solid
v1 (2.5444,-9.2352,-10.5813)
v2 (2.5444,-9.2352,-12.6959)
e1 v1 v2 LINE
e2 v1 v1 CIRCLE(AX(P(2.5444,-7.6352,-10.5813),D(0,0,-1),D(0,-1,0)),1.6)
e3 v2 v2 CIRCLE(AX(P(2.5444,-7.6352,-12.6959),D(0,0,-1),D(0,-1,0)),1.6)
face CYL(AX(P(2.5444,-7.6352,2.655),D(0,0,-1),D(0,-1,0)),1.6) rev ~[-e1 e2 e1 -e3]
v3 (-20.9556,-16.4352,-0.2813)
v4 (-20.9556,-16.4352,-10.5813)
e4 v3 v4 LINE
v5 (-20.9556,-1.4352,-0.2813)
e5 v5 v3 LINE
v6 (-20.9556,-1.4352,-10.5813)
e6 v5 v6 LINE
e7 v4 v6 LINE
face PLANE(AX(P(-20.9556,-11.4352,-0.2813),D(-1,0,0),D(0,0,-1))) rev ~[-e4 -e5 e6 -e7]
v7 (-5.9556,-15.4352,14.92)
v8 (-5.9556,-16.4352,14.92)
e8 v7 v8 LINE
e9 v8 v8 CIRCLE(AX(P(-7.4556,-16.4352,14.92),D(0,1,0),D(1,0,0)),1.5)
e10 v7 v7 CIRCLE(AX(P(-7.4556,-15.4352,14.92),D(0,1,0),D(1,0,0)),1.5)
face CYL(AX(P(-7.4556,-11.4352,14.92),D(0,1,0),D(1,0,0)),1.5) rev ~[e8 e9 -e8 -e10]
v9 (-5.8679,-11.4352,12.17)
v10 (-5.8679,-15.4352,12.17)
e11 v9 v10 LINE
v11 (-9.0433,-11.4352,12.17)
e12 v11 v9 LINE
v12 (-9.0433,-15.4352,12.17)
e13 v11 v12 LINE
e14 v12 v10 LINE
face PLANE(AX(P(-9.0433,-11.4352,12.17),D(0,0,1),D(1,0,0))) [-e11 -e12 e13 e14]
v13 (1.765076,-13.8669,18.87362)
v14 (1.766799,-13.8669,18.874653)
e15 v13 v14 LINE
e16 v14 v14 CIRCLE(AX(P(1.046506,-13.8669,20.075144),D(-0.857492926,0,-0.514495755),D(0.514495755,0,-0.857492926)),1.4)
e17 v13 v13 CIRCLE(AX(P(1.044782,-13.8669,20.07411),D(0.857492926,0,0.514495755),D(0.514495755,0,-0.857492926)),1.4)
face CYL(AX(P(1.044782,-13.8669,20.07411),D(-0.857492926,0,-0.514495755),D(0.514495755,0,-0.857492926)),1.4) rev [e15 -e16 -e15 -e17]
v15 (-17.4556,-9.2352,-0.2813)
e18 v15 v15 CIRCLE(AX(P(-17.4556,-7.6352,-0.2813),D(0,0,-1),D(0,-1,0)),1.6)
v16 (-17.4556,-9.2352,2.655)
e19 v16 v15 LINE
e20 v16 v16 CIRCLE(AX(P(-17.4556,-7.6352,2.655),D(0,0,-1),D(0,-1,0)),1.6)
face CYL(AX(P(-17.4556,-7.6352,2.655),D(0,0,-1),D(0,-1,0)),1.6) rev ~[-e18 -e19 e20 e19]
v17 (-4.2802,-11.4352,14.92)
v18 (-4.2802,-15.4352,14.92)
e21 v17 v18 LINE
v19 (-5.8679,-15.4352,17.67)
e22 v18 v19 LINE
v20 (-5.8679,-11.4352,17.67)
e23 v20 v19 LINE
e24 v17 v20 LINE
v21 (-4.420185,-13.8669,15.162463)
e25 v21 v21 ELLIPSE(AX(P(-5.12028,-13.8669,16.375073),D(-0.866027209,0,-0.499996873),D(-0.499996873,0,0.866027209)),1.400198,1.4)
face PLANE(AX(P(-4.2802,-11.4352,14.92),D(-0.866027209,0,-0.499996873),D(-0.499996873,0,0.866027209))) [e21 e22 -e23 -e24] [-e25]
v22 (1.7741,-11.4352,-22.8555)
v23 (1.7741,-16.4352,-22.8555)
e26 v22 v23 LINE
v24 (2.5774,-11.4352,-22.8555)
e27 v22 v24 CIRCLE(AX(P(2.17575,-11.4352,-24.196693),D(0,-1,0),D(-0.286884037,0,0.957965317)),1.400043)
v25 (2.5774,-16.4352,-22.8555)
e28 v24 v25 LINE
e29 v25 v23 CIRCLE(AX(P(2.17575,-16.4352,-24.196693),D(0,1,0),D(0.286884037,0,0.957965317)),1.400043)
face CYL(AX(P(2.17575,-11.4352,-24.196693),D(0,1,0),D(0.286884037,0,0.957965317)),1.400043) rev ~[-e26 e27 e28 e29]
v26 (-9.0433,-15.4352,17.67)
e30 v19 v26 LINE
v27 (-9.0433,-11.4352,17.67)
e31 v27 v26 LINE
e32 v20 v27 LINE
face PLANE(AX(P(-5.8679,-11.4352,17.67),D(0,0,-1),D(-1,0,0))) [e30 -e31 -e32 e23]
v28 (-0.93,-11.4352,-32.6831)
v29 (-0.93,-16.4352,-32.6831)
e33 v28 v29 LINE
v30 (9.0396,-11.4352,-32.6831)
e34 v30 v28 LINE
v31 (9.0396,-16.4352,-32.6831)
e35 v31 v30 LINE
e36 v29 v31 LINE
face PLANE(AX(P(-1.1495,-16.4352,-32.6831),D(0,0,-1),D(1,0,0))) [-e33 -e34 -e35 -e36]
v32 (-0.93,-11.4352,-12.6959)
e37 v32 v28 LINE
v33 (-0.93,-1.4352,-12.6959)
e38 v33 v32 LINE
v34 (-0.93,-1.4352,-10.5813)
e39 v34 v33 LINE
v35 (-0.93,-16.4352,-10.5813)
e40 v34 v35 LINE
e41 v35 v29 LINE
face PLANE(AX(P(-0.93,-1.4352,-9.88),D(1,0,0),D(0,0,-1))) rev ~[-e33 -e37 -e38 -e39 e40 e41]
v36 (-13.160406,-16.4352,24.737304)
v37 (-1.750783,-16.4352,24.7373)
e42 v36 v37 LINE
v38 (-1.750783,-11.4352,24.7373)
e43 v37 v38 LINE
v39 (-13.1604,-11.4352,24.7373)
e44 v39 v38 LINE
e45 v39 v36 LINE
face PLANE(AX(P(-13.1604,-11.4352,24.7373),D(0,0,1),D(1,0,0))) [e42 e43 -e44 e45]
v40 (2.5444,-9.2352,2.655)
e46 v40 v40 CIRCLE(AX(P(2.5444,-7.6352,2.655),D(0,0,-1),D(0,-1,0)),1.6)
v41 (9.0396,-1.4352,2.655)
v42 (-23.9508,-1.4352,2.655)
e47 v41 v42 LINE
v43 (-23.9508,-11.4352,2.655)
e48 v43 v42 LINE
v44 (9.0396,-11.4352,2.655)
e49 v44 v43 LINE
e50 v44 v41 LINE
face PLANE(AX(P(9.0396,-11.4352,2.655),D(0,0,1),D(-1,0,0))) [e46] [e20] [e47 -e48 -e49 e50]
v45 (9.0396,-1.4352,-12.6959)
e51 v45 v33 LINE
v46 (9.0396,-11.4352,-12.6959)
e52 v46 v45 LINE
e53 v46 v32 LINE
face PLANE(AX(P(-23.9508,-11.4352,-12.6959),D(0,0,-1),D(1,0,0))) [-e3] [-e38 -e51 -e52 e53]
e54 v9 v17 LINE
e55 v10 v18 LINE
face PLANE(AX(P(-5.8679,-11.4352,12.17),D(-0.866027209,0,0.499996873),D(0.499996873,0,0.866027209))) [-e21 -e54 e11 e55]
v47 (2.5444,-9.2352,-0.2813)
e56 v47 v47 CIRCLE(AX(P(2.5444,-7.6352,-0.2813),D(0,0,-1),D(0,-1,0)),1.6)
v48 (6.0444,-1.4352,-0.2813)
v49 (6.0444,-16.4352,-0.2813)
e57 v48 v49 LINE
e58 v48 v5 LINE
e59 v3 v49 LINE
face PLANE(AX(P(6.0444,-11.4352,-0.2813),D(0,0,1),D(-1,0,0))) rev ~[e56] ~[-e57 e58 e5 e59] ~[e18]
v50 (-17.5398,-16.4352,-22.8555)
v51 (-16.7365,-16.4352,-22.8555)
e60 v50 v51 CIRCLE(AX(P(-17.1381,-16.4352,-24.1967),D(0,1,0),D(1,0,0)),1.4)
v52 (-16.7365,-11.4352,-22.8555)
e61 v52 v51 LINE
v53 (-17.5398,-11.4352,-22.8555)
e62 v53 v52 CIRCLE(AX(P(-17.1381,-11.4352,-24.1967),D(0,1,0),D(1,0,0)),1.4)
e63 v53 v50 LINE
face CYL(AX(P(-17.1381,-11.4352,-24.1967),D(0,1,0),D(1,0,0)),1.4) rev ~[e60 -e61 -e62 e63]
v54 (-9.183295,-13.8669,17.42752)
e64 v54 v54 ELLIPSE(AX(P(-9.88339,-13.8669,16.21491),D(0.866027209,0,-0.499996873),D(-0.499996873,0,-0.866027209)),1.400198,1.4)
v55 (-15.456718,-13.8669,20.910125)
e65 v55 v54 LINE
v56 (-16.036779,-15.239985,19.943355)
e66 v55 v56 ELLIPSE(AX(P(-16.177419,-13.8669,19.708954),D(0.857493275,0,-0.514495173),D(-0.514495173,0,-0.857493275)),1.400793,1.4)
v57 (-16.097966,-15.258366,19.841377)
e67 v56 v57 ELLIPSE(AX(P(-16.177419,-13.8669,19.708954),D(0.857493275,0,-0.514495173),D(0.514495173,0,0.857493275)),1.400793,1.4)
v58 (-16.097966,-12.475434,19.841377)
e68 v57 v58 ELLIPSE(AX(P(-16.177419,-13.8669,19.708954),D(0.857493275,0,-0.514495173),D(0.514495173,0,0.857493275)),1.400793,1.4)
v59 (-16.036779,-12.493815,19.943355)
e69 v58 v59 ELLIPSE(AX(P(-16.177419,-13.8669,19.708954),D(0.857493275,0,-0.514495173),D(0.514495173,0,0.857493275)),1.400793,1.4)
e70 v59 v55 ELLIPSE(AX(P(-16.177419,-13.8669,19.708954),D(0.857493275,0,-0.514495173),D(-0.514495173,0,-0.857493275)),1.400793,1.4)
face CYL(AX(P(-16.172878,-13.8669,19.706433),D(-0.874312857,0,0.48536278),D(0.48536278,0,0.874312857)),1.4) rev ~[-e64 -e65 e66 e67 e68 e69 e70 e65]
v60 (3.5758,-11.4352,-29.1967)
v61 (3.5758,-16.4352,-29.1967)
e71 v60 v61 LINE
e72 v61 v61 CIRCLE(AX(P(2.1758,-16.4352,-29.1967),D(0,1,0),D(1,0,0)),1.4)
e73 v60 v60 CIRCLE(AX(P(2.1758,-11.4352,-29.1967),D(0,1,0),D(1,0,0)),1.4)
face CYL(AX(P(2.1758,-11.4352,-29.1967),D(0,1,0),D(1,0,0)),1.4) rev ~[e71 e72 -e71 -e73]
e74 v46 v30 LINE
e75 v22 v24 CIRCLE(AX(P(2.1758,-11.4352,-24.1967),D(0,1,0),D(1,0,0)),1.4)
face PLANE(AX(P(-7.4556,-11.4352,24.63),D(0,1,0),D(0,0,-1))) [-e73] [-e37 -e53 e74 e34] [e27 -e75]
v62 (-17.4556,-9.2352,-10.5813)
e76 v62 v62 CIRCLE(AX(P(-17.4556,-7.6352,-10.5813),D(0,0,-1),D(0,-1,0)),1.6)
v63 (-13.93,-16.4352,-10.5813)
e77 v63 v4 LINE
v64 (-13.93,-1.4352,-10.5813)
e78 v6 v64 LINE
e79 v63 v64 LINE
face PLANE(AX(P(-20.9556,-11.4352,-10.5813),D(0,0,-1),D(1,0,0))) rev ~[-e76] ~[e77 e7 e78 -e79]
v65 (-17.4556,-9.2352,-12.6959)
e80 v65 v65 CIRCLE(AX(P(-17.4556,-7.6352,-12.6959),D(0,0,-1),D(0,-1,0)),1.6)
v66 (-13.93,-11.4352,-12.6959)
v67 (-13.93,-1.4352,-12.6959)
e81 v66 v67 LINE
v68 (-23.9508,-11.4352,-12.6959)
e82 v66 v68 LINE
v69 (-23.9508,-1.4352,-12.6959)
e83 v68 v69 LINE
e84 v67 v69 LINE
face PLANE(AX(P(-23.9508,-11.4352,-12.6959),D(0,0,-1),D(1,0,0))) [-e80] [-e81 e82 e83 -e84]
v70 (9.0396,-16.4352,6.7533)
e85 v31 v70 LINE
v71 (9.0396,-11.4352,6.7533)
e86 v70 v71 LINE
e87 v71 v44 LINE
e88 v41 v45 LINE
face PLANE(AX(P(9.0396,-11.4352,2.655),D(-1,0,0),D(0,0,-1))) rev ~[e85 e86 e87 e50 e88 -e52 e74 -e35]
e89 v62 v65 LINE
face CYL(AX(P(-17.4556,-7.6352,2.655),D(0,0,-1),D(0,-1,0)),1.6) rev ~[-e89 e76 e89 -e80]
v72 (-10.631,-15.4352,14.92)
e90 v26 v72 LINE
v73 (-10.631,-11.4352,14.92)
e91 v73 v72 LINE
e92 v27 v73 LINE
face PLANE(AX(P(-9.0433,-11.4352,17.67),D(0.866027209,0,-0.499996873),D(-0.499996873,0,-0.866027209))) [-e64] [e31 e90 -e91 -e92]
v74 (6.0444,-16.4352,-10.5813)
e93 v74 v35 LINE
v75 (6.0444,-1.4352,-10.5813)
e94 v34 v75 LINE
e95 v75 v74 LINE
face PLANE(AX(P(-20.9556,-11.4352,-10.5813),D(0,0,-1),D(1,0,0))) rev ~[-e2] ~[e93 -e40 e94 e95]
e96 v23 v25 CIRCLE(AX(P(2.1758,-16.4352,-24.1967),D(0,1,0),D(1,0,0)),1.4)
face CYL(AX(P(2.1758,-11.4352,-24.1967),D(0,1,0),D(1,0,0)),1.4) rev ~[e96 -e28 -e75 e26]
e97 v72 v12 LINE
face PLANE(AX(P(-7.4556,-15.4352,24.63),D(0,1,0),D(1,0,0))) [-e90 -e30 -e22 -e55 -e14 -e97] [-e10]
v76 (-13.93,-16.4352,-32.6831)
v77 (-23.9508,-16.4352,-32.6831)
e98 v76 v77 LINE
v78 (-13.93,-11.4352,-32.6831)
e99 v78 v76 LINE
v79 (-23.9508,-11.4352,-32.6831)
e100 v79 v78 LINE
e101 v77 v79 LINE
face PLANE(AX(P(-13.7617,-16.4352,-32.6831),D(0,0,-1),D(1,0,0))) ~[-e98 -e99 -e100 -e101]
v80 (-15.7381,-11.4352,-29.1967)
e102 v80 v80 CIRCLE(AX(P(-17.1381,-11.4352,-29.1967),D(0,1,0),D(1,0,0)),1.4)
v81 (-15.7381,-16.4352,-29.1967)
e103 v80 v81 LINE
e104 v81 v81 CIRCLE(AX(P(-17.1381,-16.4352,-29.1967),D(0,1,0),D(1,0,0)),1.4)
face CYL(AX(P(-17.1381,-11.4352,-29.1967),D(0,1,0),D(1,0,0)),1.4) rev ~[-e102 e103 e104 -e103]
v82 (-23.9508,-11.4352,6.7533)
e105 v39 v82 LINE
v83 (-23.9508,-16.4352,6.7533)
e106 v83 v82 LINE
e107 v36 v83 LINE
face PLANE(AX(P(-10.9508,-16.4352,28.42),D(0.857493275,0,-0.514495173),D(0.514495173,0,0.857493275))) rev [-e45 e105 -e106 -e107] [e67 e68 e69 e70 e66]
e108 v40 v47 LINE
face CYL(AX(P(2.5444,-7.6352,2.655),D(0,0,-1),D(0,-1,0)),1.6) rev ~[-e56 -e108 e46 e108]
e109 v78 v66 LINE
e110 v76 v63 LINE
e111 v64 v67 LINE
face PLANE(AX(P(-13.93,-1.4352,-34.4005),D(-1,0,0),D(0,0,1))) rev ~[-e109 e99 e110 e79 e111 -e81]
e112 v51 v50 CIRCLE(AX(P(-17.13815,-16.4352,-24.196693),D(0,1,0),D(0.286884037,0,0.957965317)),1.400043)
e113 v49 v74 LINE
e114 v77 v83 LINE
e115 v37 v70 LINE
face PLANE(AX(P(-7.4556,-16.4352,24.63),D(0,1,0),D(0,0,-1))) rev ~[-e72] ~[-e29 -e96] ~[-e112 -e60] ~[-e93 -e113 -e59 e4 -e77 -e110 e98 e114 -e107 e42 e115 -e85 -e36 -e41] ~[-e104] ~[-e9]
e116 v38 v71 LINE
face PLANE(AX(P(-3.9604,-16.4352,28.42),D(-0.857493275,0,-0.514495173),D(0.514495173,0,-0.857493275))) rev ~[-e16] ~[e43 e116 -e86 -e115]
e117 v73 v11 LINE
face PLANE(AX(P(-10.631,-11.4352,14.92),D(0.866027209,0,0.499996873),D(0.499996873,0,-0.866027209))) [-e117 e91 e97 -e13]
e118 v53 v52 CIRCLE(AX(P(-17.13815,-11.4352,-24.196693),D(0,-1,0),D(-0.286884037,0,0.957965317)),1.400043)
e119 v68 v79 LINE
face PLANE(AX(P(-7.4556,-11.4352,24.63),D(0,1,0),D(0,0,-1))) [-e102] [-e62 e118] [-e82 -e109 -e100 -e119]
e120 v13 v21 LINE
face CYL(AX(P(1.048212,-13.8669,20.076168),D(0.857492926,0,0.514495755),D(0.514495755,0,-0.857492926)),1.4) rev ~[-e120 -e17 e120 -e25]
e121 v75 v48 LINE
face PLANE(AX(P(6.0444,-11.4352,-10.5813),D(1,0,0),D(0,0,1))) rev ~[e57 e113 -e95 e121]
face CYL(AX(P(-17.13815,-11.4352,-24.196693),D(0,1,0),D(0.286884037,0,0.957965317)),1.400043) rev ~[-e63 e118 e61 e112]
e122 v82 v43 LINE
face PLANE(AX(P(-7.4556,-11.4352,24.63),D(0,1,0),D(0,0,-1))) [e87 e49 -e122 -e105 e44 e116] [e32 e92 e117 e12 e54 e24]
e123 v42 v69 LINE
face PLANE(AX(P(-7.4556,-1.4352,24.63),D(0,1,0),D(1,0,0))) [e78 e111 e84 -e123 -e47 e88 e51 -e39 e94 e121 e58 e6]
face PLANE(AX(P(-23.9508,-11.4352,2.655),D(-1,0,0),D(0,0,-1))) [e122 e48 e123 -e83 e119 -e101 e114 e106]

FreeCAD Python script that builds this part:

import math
import FreeCAD as App
import Part
import Sketcher

V = App.Vector
Q = App.Units.Quantity


def add_polygon(sketch, points):
    """Adds a closed chain of lines whose ends are joined by coincident constraints."""
    first, n = sketch.GeometryCount, len(points)
    for a, b in zip(points, points[1:] + points[:1]):
        sketch.addGeometry(Part.LineSegment(App.Vector(*a, 0), App.Vector(*b, 0)), False)
    for i in range(n):
        sketch.addConstraint(Sketcher.Constraint("Coincident", first + i, 2, first + (i + 1) % n, 1))

doc = App.newDocument("Part")
body = doc.addObject("PartDesign::Body", "Body")

sketch1 = body.newObject("Sketcher::SketchObject", "Sketch")
sketch1.AttachmentSupport = (doc.getObject("XZ_Plane"), [""])
sketch1.MapMode = "FlatFace"
sketch1.AttachmentOffset = App.Placement(V(0, 0, 16.4352), App.Rotation())
add_polygon(sketch1, [(-7.5, -25.3), (-7.5, 28.4), (-4, 28.4), (9, 6.8), (9, -32.7), (-1.1, -32.7), (-1.1, -25.3)])
sketch1.addConstraint([
    Sketcher.Constraint("Vertical", 0),
    Sketcher.Constraint("Horizontal", 1),
    Sketcher.Constraint("Vertical", 3),
    Sketcher.Constraint("Horizontal", 4),
    Sketcher.Constraint("Vertical", 5),
    Sketcher.Constraint("Horizontal", 6),
    Sketcher.Constraint("DistanceX", 1, 2, 2, 2, 13.0),
    Sketcher.Constraint("DistanceY", 0, 1, 0, 2, 53.72),
    Sketcher.Constraint("DistanceY", 5, 2, -1, 1, 25.3),
    Sketcher.Constraint("DistanceX", 4, 2, 4, 1, 10.189),
    Sketcher.Constraint("DistanceX", 6, 2, 6, 1, 6.306),
    Sketcher.Constraint("DistanceY", 5, 1, 5, 2, 7.383),
    Sketcher.Constraint("DistanceY", 3, 2, 3, 1, 39.4364),
    Sketcher.Constraint("DistanceX", 0, 2, -1, 1, 7.4556),
])
pad1 = body.newObject("PartDesign::Pad", "Pad")
pad1.Profile = sketch1
pad1.Length = 5
pad1.Reversed = True

sketch2 = body.newObject("Sketcher::SketchObject", "Sketch001")
sketch2.AttachmentSupport = (doc.getObject("XZ_Plane"), [""])
sketch2.MapMode = "FlatFace"
sketch2.AttachmentOffset = App.Placement(V(0, 0, 11.4352), App.Rotation())
add_polygon(sketch2, [(-21, -11), (-21, 0), (6, 0), (6, -11)])
sketch2.addConstraint([
    Sketcher.Constraint("Vertical", 0),
    Sketcher.Constraint("Horizontal", 1),
    Sketcher.Constraint("Vertical", 2),
    Sketcher.Constraint("Horizontal", 3),
    Sketcher.Constraint("DistanceY", 0, 1, 0, 2, 10.3),
    Sketcher.Constraint("DistanceX", 0, 2, -1, 1, 20.63),
    Sketcher.Constraint("DistanceX", 1, 1, 1, 2, 26.6744),
    Sketcher.Constraint("DistanceY", 0, 2, -1, 1, 0.2813),
])
pocket1 = body.newObject("PartDesign::Pocket", "Pocket")
pocket1.Profile = sketch2
pocket1.Type = "ThroughAll"
pocket1.Reversed = True
doc.recompute()

datumplane = body.newObject("PartDesign::Plane", "DatumPlane")
datumplane.AttachmentSupport = (doc.getObject("YZ_Plane"), [""])
datumplane.MapMode = "FlatFace"
datumplane.AttachmentOffset = App.Placement(V(0, 0, -7.4556), App.Rotation())
mirrored = body.newObject("PartDesign::Mirrored", "Mirrored")
mirrored.Originals = [pad1, pocket1]
mirrored.MirrorPlane = (datumplane, [""])
body.Tip = mirrored

sketch3 = body.newObject("Sketcher::SketchObject", "Sketch002")
sketch3.AttachmentSupport = (doc.getObject("XZ_Plane"), [""])
sketch3.MapMode = "FlatFace"
sketch3.AttachmentOffset = App.Placement(V(0, 0, 11.4352), App.Rotation())
add_polygon(sketch3, [(-24, -13), (-24, 3), (9, 3), (9, -13)])
add_polygon(sketch3, [(-21, 0), (-21, -11), (6, -11), (6, 0)])
sketch3.addConstraint([
    Sketcher.Constraint("Vertical", 0),
    Sketcher.Constraint("Horizontal", 1),
    Sketcher.Constraint("Vertical", 2),
    Sketcher.Constraint("Horizontal", 3),
    Sketcher.Constraint("Vertical", 4),
    Sketcher.Constraint("Horizontal", 5),
    Sketcher.Constraint("Vertical", 6),
    Sketcher.Constraint("Horizontal", 7),
    Sketcher.Constraint("DistanceX", 5, 1, 5, 2, 27.0),
    Sketcher.Constraint("DistanceY", 4, 2, 4, 1, 10.3),
    Sketcher.Constraint("DistanceY", 0, 1, 0, 2, 15.351),
    Sketcher.Constraint("DistanceX", 1, 1, 1, 2, 32.9904),
    Sketcher.Constraint("DistanceY", -1, 1, 0, 2, 2.655),
    Sketcher.Constraint("DistanceX", 0, 2, -1, 1, 23.9508),
    Sketcher.Constraint("DistanceX", 4, 2, -1, 1, 20.9556),
    Sketcher.Constraint("DistanceY", 4, 2, -1, 1, 10.5813),
])
pad2 = body.newObject("PartDesign::Pad", "Pad001")
pad2.Profile = sketch3
pad2.Length = 10
pad2.Reversed = True

sketch4 = body.newObject("Sketcher::SketchObject", "Sketch003")
sketch4.AttachmentSupport = (doc.getObject("XY_Plane"), [""])
sketch4.MapMode = "FlatFace"
sketch4.AttachmentOffset = App.Placement(V(0, 0, 2.655), App.Rotation())
sketch4.addGeometry([
    Part.Circle(V(-17.5, -7.6, 0), V(0, 0, 1), 1.6),
    Part.Circle(V(2.5, -7.6, 0), V(0, 0, 1), 1.6),
], False)
sketch4.addConstraint([
    Sketcher.Constraint("Equal", 0, 1),
    Sketcher.Constraint("Horizontal", 0, 3, 1, 3),
    Sketcher.Constraint("Diameter", 0, 3.2),
    Sketcher.Constraint("DistanceX", 0, 3, 1, 3, 20.0),
    Sketcher.Constraint("DistanceX", 0, 3, -1, 1, 17.4556),
    Sketcher.Constraint("DistanceY", 0, 3, -1, 1, 7.6352),
])
doc.recompute()
hole = body.newObject("PartDesign::Hole", "Hole")
hole.Profile = sketch4
hole.ThreadType = "None"
hole.Diameter = 3.2
hole.DepthType = "ThroughAll"

sketch5 = body.newObject("Sketcher::SketchObject", "Sketch004")
sketch5.AttachmentSupport = (doc.getObject("XZ_Plane"), [""])
sketch5.MapMode = "FlatFace"
sketch5.AttachmentOffset = App.Placement(V(0, 0, 11.4352), App.Rotation())
sketch5.addGeometry([
    Part.Circle(V(-18, -43.9, 0), V(0, 0, 1), 1.4),
    Part.Circle(V(1.3, -43.9, 0), V(0, 0, 1), 1.4),
    Part.ArcOfCircle(Part.Circle(V(-18, -38.9, 0), V(0, 0, 1), 1.4), math.radians(73), math.radians(107)),
    Part.ArcOfCircle(Part.Circle(V(-18, -38.9, 0), V(0, 0, 1), 1.4), math.radians(107), math.radians(433)),
    Part.ArcOfCircle(Part.Circle(V(1.3, -38.9, 0), V(0, 0, 1), 1.4), math.radians(73), math.radians(107)),
    Part.ArcOfCircle(Part.Circle(V(1.3, -38.9, 0), V(0, 0, 1), 1.4), math.radians(107), math.radians(433)),
], False)
sketch5.addConstraint([
    Sketcher.Constraint("Tangent", 2, 1, 3, 2),
    Sketcher.Constraint("Coincident", 3, 1, 2, 2),
    Sketcher.Constraint("Tangent", 4, 1, 5, 2),
    Sketcher.Constraint("Coincident", 5, 1, 4, 2),
    Sketcher.Constraint("Equal", 0, 1),
    Sketcher.Constraint("Equal", 1, 2),
    Sketcher.Constraint("Equal", 3, 4),
    Sketcher.Constraint("Horizontal", 0, 3, 1, 3),
    Sketcher.Constraint("Horizontal", 3, 3, 4, 3),
    Sketcher.Constraint("Horizontal", 2, 1, 3, 1),
    Sketcher.Constraint("Horizontal", 3, 1, 4, 1),
    Sketcher.Constraint("Horizontal", 4, 1, 5, 1),
    Sketcher.Constraint("Vertical", 0, 3, 2, 3),
    Sketcher.Constraint("Vertical", 1, 3, 4, 3),
    Sketcher.Constraint("Diameter", 0, 2.8),
    Sketcher.Constraint("DistanceY", 0, 3, 2, 3, 5.0),
    Sketcher.Constraint("DistanceX", 0, 3, -1, 1, 17.987),
    Sketcher.Constraint("DistanceX", 0, 3, 1, 3, 19.314),
    Sketcher.Constraint("DistanceY", 0, 3, -1, 1, 43.9167),
    Sketcher.Constraint("DistanceX", 2, 1, -1, 1, 17.5854),
])
pocket2 = body.newObject("PartDesign::Pocket", "Pocket001")
pocket2.Profile = sketch5
pocket2.Length = 10
pocket2.Reversed = True

sketch6 = body.newObject("Sketcher::SketchObject", "Sketch005")
sketch6.AttachmentSupport = (doc.getObject("XZ_Plane"), [""])
sketch6.MapMode = "FlatFace"
sketch6.AttachmentOffset = App.Placement(V(0, 0, 1.4352), App.Rotation())
add_polygon(sketch6, [(-14, -34), (-14, -4), (-1, -4), (-1, -34)])
sketch6.addConstraint([
    Sketcher.Constraint("Vertical", 0),
    Sketcher.Constraint("Horizontal", 1),
    Sketcher.Constraint("Vertical", 2),
    Sketcher.Constraint("Horizontal", 3),
    Sketcher.Constraint("DistanceX", 1, 1, 1, 2, 13.0),
    Sketcher.Constraint("DistanceX", 0, 2, -1, 1, 13.93),
    Sketcher.Constraint("DistanceY", 0, 2, -1, 1, 3.83),
    Sketcher.Constraint("DistanceY", 0, 1, 0, 2, 30.5705),
])
pocket3 = body.newObject("PartDesign::Pocket", "Pocket002")
pocket3.Profile = sketch6
pocket3.Type = "ThroughAll"
pocket3.Reversed = True

sketch7 = body.newObject("Sketcher::SketchObject", "Sketch006")
sketch7.AttachmentSupport = (doc.getObject("XZ_Plane"), [""])
sketch7.MapMode = "FlatFace"
sketch7.AttachmentOffset = App.Placement(V(0, 0, 11.4352), App.Rotation())
sketch7.addGeometry(Part.Circle(V(-7.5, 14.9, 0), V(0, 0, 1), 1.5), False)
sketch7.addConstraint([
    Sketcher.Constraint("Diameter", 0, 3.0),
    Sketcher.Constraint("DistanceY", -1, 1, 0, 3, 14.92),
    Sketcher.Constraint("DistanceX", 0, 3, -1, 1, 7.4556),
])
pocket4 = body.newObject("PartDesign::Pocket", "Pocket003")
pocket4.Profile = sketch7
pocket4.Length = 10
pocket4.Reversed = True

sketch8 = body.newObject("Sketcher::SketchObject", "Sketch007")
sketch8.AttachmentSupport = (doc.getObject("XZ_Plane"), [""])
sketch8.MapMode = "FlatFace"
sketch8.AttachmentOffset = App.Placement(V(0, 0, 11.4352), App.Rotation())
sketch8.addGeometry([
    Part.ArcOfCircle(Part.Circle(V(2.2, -24.2, 0), V(0, 0, 1), 1.4), math.radians(107), math.radians(433)),
    Part.ArcOfCircle(Part.Circle(V(2.2, -24.2, 0), V(0, 0, 1), 1.4), math.radians(73), math.radians(107)),
    Part.ArcOfCircle(Part.Circle(V(-17.1, -24.2, 0), V(0, 0, 1), 1.4), math.radians(73), math.radians(107)),
    Part.ArcOfCircle(Part.Circle(V(-17.1, -24.2, 0), V(0, 0, 1), 1.4), math.radians(107), math.radians(433)),
    Part.Circle(V(-17.1, -29.2, 0), V(0, 0, 1), 1.4),
    Part.Circle(V(2.2, -29.2, 0), V(0, 0, 1), 1.4),
], False)
sketch8.addConstraint([
    Sketcher.Constraint("Tangent", 0, 1, 1, 2),
    Sketcher.Constraint("Coincident", 1, 1, 0, 2),
    Sketcher.Constraint("Tangent", 2, 1, 3, 2),
    Sketcher.Constraint("Coincident", 3, 1, 2, 2),
    Sketcher.Constraint("Equal", 1, 2),
    Sketcher.Constraint("Equal", 3, 4),
    Sketcher.Constraint("Equal", 4, 5),
    Sketcher.Constraint("Horizontal", 1, 3, 2, 3),
    Sketcher.Constraint("Horizontal", 4, 3, 5, 3),
    Sketcher.Constraint("Horizontal", 0, 1, 1, 1),
    Sketcher.Constraint("Horizontal", 1, 1, 2, 1),
    Sketcher.Constraint("Horizontal", 2, 1, 3, 1),
    Sketcher.Constraint("Vertical", 3, 3, 4, 3),
    Sketcher.Constraint("Vertical", 1, 3, 5, 3),
    Sketcher.Constraint("Diameter", 4, 2.8),
    Sketcher.Constraint("DistanceY", 4, 3, 2, 3, 5.0),
    Sketcher.Constraint("DistanceX", 2, 3, -1, 1, 17.138),
    Sketcher.Constraint("DistanceX", -1, 1, 0, 1, 1.774),
    Sketcher.Constraint("DistanceX", 2, 3, 0, 3, 19.314),
    Sketcher.Constraint("DistanceY", 0, 3, -1, 1, 24.1967),
])
pocket5 = body.newObject("PartDesign::Pocket", "Pocket004")
pocket5.Profile = sketch8
pocket5.Length = 10
pocket5.Reversed = True

sketch9 = body.newObject("Sketcher::SketchObject", "Sketch008")
sketch9.AttachmentSupport = (doc.getObject("XZ_Plane"), [""])
sketch9.MapMode = "FlatFace"
sketch9.AttachmentOffset = App.Placement(V(0, 0, 11.4352), App.Rotation())
add_polygon(sketch9, [(-10.6, 14.9), (-9, 17.7), (-5.9, 17.7), (-4.3, 14.9), (-5.9, 12.2), (-9, 12.2)])
sketch9.addGeometry(Part.Circle(V(-7.5, 14.9, 0), V(0, 0, 1), 1.5), False)
sketch9.addConstraint([
    Sketcher.Constraint("Horizontal", 1),
    Sketcher.Constraint("Horizontal", 4),
    Sketcher.Constraint("Parallel", 0, 3),
    Sketcher.Constraint("Parallel", 2, 5),
    Sketcher.Constraint("Horizontal", 6, 3, 2, 2),
    Sketcher.Constraint("Horizontal", 2, 2, 5, 2),
    Sketcher.Constraint("Vertical", 1, 2, 3, 2),
    Sketcher.Constraint("Vertical", 0, 2, 4, 2),
    Sketcher.Constraint("Diameter", 6, 3.0),
    Sketcher.Constraint("DistanceY", 3, 2, 1, 2, 5.5),
    Sketcher.Constraint("Angle", 0, Q("60.0002 deg")),
    Sketcher.Constraint("DistanceY", -1, 1, 6, 3, 14.92),
    Sketcher.Constraint("DistanceX", 1, 1, 1, 2, 3.1754),
    Sketcher.Constraint("DistanceX", 1, 2, -1, 1, 5.868),
    Sketcher.Constraint("DistanceX", 6, 3, -1, 1, 7.4556),
])
pocket6 = body.newObject("PartDesign::Pocket", "Pocket005")
pocket6.Profile = sketch9
pocket6.Length = 4
pocket6.Reversed = True

sketch10 = body.newObject("Sketcher::SketchObject", "Sketch009")
sketch10.Placement = App.Placement(V(9.0396, -16.4352, 6.7533), App.Rotation(V(0.514495755, 0, -0.857492926), V(0, 1, 0), V(0.857492926, 0, 0.514495755), "ZXY"))
sketch10.addGeometry(Part.Circle(V(-15.5, 2.6, 0), V(0, 0, 1), 1.4), False)
sketch10.addConstraint([
    Sketcher.Constraint("Diameter", 0, 2.8),
    Sketcher.Constraint("DistanceX", 0, 3, -1, 1, 15.5358),
    Sketcher.Constraint("DistanceY", -1, 1, 0, 3, 2.5683),
])
pocket7 = body.newObject("PartDesign::Pocket", "Pocket006")
pocket7.Profile = sketch10
pocket7.Length = 20
pocket7.Midplane = True
doc.recompute()

datumline = body.newObject("PartDesign::Line", "DatumLine")
datumline.Placement = App.Placement(V(-7.4556, 0, 14.92), App.Rotation(V(0, 0, 1), V(0, 1, 0)))
polarpattern = body.newObject("PartDesign::PolarPattern", "PolarPattern")
polarpattern.Originals = [pocket7]
polarpattern.Axis = (datumline, [""])
polarpattern.Angle = 120
polarpattern.Occurrences = 2
polarpattern.Reversed = True
body.Tip = polarpattern

sketch11 = body.newObject("Sketcher::SketchObject", "Sketch010")
sketch11.AttachmentSupport = (doc.getObject("XZ_Plane"), [""])
sketch11.MapMode = "FlatFace"
sketch11.AttachmentOffset = App.Placement(V(0, 0, 11.4352), App.Rotation())
add_polygon(sketch11, [(-13.2, 29.2), (1.3, 29.2), (1.3, 24.7), (-13.2, 24.7)])
sketch11.addConstraint([
    Sketcher.Constraint("Horizontal", 0),
    Sketcher.Constraint("Vertical", 1),
    Sketcher.Constraint("Horizontal", 2),
    Sketcher.Constraint("Vertical", 3),
    Sketcher.Constraint("DistanceX", 0, 1, 0, 2, 14.4983),
    Sketcher.Constraint("DistanceY", 1, 2, 1, 1, 4.4425),
    Sketcher.Constraint("DistanceX", -1, 1, 0, 2, 1.338),
    Sketcher.Constraint("DistanceY", -1, 1, 0, 2, 29.1798),
])
pocket8 = body.newObject("PartDesign::Pocket", "Pocket007")
pocket8.Profile = sketch11
pocket8.Length = 20
pocket8.Reversed = True

doc.recompute()
